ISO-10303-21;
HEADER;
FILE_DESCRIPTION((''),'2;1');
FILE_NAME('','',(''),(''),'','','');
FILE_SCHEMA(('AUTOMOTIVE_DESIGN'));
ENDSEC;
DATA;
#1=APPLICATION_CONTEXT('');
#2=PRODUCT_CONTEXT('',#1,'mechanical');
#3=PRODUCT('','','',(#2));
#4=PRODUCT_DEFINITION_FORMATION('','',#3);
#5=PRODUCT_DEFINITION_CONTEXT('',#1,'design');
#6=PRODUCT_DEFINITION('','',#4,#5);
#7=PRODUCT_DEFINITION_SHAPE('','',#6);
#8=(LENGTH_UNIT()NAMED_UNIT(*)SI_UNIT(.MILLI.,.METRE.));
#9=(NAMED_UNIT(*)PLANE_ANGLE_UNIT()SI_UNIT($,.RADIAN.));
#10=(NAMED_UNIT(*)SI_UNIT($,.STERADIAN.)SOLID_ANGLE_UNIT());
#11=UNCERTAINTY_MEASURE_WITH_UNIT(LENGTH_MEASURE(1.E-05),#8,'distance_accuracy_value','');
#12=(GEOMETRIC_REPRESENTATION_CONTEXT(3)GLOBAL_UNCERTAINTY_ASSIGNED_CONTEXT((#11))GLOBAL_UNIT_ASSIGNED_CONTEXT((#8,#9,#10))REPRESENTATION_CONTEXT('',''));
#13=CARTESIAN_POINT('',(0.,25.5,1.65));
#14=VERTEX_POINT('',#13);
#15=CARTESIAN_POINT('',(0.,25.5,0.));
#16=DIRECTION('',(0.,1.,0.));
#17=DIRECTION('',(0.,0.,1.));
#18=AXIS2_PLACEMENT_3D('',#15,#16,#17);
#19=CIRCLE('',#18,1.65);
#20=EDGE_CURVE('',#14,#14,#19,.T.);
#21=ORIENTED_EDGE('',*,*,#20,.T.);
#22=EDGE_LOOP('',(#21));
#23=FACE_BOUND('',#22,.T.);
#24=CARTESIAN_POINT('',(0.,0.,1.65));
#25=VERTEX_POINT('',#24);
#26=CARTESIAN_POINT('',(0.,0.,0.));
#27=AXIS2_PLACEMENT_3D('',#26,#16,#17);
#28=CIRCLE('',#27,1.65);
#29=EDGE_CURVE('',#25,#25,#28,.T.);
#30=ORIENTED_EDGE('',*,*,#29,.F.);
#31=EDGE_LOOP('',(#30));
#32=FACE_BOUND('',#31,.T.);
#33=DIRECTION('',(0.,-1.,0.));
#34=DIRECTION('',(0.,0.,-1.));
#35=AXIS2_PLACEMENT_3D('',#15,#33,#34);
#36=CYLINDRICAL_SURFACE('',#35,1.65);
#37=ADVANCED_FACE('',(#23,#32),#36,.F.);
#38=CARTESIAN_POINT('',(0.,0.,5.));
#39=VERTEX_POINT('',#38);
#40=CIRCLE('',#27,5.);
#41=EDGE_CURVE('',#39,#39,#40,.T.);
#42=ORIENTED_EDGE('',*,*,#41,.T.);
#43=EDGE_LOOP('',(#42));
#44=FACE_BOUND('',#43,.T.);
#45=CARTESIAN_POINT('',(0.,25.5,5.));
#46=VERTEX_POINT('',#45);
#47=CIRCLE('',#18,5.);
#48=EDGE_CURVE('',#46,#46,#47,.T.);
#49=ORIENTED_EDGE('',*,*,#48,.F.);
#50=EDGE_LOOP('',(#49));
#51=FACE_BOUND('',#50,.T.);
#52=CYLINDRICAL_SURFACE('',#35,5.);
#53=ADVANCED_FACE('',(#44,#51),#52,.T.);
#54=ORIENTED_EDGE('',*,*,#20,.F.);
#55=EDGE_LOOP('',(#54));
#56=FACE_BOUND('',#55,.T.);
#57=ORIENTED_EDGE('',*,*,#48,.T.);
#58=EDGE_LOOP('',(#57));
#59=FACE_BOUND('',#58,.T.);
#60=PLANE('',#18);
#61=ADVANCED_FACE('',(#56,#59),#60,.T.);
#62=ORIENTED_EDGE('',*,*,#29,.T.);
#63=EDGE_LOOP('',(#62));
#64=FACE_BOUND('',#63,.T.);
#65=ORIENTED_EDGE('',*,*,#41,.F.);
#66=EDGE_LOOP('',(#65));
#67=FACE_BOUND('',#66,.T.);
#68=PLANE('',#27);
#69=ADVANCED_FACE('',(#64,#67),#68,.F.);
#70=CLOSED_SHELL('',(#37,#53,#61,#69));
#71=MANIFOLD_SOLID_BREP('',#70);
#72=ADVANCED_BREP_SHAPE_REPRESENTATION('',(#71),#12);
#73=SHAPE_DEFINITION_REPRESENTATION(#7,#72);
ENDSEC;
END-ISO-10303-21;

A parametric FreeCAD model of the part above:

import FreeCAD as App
import Part
import Sketcher
from FreeCAD import Vector
Q = App.Units.Quantity

doc = App.newDocument("Part")
body = doc.addObject("PartDesign::Body", "Body")

# Sketch on XZ plane
sketch1 = body.newObject("Sketcher::SketchObject", "Sketch")
sketch1.AttachmentSupport = (doc.getObject("XZ_Plane"), [""])
sketch1.MapMode = "FlatFace"
sketch1.addGeometry([
    Part.Circle(Vector(0, 0, 0), Vector(0, 0, 1), 5),
    Part.Circle(Vector(0, 0, 0), Vector(0, 0, 1), 1.6),
], False)
sketch1.addConstraint([
    Sketcher.Constraint("Coincident", 0, 3, -1, 1),
    Sketcher.Constraint("Coincident", 1, 3, -1, 1),
    Sketcher.Constraint("Diameter", 0, Q("10 mm")),
    Sketcher.Constraint("Diameter", 1, Q("3.3 mm")),
])
pad1 = body.newObject("PartDesign::Pad", "Pad")
pad1.Profile = sketch1
pad1.Length = 25.5
pad1.Reversed = True

doc.recompute()
